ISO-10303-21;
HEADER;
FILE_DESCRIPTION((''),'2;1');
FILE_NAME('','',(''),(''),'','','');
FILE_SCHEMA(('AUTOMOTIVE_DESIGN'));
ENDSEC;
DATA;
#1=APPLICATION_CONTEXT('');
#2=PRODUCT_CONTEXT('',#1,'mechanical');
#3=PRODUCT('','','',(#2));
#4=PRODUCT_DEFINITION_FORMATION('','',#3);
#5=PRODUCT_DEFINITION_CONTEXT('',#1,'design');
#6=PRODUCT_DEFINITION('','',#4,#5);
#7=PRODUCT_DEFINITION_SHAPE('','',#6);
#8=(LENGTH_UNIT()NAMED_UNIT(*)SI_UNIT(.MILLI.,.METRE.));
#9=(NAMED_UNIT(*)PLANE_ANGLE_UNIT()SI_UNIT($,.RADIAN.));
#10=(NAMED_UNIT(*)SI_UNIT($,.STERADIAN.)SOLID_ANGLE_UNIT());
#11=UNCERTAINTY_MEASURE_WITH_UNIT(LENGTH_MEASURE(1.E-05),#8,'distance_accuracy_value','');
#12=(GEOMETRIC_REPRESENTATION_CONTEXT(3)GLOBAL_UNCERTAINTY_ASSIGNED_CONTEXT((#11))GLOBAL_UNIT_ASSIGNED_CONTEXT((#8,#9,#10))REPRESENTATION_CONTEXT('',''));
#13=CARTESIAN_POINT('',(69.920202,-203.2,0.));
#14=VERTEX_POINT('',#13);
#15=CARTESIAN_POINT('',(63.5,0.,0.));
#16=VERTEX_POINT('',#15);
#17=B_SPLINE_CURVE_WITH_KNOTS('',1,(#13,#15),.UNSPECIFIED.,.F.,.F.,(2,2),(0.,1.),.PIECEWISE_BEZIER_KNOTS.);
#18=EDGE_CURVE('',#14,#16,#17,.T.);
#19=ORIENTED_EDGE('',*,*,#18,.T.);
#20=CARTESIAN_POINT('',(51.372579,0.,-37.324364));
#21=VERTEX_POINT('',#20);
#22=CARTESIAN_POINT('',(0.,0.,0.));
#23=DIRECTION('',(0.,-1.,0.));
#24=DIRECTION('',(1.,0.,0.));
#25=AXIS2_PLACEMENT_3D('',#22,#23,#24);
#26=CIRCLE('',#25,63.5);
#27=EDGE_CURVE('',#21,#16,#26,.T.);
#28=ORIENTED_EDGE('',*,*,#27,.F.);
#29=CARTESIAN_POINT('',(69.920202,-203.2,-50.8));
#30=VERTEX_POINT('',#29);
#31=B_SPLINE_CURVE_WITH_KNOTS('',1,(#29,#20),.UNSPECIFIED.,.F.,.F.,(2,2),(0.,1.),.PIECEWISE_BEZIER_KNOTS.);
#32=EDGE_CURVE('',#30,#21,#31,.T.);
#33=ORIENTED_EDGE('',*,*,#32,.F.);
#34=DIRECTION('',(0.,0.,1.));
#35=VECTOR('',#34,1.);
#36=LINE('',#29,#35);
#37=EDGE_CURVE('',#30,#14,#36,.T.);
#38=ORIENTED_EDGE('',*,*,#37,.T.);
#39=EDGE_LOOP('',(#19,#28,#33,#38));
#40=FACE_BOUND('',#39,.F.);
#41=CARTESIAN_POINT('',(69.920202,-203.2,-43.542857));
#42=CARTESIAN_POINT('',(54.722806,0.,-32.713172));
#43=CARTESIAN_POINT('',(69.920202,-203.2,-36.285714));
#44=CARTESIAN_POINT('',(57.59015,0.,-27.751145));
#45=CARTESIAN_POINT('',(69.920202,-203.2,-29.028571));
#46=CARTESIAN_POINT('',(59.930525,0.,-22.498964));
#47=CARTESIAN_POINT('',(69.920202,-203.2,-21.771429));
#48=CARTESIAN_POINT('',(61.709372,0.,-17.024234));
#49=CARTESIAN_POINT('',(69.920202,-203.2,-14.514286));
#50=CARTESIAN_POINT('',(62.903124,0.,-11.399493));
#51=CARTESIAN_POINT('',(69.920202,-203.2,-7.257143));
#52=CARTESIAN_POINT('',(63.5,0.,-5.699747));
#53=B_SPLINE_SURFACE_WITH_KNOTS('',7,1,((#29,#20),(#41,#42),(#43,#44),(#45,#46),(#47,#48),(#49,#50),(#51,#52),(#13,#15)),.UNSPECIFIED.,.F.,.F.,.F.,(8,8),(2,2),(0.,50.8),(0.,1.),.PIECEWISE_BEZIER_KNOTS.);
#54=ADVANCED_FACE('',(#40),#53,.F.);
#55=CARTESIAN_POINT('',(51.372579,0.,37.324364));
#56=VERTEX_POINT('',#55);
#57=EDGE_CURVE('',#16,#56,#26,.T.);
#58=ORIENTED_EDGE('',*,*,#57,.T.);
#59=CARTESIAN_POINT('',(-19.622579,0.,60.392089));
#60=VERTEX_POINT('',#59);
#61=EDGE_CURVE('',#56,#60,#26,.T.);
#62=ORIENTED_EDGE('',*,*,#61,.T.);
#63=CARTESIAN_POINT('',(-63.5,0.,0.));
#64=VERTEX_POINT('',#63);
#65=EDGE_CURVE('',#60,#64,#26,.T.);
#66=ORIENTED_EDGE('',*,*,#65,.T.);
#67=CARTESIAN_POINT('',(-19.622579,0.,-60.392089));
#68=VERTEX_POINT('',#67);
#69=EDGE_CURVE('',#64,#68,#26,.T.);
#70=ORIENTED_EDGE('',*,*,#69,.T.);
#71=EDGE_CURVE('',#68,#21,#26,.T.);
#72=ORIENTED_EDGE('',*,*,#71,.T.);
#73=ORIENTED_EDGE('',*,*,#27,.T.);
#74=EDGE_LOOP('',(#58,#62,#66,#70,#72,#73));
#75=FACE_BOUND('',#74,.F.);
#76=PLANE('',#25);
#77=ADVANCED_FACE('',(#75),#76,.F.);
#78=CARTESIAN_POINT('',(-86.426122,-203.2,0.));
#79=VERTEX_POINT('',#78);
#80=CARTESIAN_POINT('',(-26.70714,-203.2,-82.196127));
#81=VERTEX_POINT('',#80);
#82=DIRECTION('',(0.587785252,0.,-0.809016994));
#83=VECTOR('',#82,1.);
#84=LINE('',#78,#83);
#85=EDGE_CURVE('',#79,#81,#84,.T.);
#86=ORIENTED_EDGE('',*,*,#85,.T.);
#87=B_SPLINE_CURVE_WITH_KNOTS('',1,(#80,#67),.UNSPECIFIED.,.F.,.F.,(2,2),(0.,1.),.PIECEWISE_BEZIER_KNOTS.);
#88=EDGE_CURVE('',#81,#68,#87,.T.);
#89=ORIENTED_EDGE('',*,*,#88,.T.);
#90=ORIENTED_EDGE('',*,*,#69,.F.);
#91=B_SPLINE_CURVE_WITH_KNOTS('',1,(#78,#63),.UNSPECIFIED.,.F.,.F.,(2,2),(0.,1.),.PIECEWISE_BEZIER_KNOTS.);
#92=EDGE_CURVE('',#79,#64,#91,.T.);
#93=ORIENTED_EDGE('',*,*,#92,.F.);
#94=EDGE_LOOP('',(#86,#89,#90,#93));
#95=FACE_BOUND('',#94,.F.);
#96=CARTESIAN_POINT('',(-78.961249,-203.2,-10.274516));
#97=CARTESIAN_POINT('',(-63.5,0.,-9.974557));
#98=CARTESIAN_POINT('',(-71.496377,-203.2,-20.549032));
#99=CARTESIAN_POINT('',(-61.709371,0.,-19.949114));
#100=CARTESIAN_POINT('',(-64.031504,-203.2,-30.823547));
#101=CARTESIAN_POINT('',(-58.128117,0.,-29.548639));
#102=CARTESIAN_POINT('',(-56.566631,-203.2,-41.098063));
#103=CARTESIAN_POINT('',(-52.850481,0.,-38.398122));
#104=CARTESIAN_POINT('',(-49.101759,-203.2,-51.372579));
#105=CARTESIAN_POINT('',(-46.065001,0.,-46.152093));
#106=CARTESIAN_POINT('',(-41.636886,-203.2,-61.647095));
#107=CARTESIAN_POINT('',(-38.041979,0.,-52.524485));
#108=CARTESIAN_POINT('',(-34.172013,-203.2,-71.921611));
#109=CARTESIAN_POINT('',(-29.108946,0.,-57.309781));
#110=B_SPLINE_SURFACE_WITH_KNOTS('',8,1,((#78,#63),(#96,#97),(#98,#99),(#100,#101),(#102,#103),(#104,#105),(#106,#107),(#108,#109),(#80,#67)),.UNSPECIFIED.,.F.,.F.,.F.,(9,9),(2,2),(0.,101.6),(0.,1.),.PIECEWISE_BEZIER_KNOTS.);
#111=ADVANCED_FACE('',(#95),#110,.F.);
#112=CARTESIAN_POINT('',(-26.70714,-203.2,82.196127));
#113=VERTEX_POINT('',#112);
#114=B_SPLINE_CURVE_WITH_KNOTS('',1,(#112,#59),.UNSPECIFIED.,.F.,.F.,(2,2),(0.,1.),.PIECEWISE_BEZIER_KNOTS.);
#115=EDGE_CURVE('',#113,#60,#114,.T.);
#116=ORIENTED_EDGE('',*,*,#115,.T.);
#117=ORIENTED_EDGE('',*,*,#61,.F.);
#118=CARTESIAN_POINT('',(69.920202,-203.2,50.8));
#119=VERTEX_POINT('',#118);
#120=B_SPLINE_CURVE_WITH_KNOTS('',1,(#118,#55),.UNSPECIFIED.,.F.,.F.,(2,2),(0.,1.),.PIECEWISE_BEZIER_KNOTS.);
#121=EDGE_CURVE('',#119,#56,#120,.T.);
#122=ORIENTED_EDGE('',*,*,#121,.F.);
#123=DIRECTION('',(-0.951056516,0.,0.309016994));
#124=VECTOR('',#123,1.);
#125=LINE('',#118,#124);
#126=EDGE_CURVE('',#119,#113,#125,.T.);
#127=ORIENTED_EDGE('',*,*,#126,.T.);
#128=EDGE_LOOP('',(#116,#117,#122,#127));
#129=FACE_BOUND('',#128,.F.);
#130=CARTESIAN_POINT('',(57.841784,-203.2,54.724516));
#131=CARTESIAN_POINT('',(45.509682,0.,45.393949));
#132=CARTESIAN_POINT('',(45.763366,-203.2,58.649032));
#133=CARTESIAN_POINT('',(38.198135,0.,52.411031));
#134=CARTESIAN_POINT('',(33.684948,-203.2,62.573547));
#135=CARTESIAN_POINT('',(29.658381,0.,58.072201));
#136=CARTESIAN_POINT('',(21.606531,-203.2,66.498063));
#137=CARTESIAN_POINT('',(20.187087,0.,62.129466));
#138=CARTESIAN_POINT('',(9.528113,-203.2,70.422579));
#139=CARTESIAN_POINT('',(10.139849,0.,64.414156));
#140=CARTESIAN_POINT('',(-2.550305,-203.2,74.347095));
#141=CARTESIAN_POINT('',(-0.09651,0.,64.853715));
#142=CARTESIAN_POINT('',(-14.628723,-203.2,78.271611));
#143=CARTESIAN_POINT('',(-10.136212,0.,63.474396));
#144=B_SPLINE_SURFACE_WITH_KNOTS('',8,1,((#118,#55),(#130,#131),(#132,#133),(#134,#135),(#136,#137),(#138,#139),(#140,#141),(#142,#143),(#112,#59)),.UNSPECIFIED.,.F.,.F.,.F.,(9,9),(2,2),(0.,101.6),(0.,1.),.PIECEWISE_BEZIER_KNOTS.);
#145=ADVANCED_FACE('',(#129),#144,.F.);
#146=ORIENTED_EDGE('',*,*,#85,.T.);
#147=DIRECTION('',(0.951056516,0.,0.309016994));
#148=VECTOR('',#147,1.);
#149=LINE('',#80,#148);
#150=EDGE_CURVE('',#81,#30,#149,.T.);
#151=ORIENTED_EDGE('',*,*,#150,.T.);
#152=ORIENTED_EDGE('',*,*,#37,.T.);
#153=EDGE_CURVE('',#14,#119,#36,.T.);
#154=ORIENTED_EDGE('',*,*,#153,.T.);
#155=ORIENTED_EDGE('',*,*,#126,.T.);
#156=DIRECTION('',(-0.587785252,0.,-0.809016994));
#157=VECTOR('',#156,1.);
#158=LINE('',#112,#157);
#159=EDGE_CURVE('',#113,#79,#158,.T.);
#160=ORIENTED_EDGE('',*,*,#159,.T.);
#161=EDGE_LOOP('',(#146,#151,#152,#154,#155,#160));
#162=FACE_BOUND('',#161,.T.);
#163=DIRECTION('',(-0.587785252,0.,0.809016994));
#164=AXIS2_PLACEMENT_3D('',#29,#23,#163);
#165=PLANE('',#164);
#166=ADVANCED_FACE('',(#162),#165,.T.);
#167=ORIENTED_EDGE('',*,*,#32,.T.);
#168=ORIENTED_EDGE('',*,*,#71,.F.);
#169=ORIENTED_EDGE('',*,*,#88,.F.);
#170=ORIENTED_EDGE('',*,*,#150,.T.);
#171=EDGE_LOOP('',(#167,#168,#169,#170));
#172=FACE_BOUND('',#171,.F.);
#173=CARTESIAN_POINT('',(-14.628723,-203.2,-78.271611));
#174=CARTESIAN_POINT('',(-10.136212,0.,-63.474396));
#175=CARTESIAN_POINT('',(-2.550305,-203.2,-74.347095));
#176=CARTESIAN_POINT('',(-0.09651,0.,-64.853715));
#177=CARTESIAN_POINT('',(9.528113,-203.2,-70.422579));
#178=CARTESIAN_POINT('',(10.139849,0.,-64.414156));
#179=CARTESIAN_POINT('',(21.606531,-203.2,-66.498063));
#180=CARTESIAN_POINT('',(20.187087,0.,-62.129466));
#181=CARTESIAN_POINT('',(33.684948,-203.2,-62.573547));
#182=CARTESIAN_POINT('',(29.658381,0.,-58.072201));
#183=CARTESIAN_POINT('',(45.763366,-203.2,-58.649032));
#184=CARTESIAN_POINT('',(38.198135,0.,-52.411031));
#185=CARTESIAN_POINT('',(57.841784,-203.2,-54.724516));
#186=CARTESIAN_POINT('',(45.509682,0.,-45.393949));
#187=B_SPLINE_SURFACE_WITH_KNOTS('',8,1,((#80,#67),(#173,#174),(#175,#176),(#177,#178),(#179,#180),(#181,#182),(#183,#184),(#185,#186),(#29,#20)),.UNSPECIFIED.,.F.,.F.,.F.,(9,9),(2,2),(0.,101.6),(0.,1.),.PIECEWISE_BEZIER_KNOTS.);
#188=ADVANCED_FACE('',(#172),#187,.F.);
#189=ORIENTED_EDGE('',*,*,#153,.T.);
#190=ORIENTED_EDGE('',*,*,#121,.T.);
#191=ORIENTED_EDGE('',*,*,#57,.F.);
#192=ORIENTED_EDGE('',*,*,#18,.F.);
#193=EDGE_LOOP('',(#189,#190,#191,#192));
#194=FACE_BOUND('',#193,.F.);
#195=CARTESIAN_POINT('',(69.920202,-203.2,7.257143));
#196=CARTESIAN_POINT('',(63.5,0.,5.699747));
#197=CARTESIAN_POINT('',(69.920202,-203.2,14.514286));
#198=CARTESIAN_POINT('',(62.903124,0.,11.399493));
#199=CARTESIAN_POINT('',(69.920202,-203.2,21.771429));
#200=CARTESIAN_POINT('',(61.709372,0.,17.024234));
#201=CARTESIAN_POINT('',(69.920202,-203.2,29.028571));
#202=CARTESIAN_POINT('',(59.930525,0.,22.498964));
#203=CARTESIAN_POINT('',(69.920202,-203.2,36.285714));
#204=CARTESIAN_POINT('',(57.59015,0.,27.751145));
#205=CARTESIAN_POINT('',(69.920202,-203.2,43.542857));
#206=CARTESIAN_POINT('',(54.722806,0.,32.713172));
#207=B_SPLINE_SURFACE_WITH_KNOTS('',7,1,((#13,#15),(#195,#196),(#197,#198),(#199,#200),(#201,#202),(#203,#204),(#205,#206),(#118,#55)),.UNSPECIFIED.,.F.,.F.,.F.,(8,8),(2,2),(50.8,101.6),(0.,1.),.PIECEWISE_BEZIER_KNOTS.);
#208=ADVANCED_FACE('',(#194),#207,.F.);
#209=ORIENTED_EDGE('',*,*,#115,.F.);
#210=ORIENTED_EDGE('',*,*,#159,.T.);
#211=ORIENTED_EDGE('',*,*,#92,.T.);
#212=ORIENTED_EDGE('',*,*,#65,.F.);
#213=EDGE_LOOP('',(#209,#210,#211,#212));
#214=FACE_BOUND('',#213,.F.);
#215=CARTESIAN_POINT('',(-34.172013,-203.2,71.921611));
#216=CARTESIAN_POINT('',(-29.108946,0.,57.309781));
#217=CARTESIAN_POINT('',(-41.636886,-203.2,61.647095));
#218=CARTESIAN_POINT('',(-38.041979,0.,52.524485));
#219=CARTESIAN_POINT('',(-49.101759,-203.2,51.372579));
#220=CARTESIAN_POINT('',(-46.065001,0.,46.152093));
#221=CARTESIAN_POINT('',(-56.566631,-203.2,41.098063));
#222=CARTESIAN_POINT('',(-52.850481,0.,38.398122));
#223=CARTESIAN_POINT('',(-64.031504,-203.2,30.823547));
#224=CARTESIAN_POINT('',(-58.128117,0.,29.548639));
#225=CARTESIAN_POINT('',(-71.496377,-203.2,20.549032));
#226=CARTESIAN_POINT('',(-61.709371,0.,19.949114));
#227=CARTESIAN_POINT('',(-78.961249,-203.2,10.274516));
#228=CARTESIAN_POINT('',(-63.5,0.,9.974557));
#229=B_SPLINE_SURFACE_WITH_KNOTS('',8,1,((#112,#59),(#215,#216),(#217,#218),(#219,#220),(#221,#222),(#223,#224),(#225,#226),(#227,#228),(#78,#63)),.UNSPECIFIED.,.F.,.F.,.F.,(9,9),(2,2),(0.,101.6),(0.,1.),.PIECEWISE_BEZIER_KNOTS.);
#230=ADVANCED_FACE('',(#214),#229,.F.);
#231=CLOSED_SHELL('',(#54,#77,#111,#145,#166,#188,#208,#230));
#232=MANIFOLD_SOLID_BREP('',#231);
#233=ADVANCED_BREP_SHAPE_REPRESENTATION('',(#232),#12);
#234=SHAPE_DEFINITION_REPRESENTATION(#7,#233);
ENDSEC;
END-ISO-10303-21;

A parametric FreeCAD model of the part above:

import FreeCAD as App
import Part
import Sketcher
Q = App.Units.Quantity


def add_polygon(sketch, points):
    """Adds a closed chain of lines whose ends are joined by coincident constraints."""
    first, n = sketch.GeometryCount, len(points)
    for a, b in zip(points, points[1:] + points[:1]):
        sketch.addGeometry(Part.LineSegment(App.Vector(*a, 0), App.Vector(*b, 0)), False)
    for i in range(n):
        sketch.addConstraint(Sketcher.Constraint("Coincident", first + i, 2, first + (i + 1) % n, 1))

doc = App.newDocument("Part")
body = doc.addObject("PartDesign::Body", "Body")

# Sketch on XZ plane
sketch1 = doc.addObject("Sketcher::SketchObject", "Sketch")
body.addObject(sketch1)
sketch1.AttachmentSupport = (doc.XZ_Plane, [""])
sketch1.MapMode = "FlatFace"
sketch1.AttachmentOffset = App.Placement(App.Vector(0, 0, 8 * 25.4), App.Rotation())
add_polygon(sketch1, [(70, -51), (70, 51), (-27, 82), (-86, 0), (-27, -82)])  # lines 0-4
sketch1.addConstraint(Sketcher.Constraint("Vertical", 0))
sketch1.addConstraint(Sketcher.Constraint("Symmetric", 1, 2, 3, 2, -1))
sketch1.addConstraint(Sketcher.Constraint("PointOnObject", 2, 2, -1))
sketch1.addConstraint(Sketcher.Constraint("Equal", 1, 2))
sketch1.addConstraint(Sketcher.Constraint("Equal", 3, 4))
sketch1.addConstraint(Sketcher.Constraint("DistanceY", 0, 1, 0, 2, Q("4 in")))
sketch1.addConstraint(Sketcher.Constraint("Distance", 1, Q("4 in")))
sketch1.addConstraint(Sketcher.Constraint("Angle", 1, Q("162 deg")))
sketch1.addConstraint(Sketcher.Constraint("DistanceX", -1, 1, 0, 2, Q("69.920202 mm")))

# Sketch on XZ plane
sketch2 = doc.addObject("Sketcher::SketchObject", "Sketch001")
body.addObject(sketch2)
sketch2.AttachmentSupport = (doc.XZ_Plane, [""])
sketch2.MapMode = "FlatFace"
sketch2.addGeometry(Part.Circle(App.Vector(0, 0, 0), App.Vector(0, 0, 1), 64), False)
sketch2.addConstraint(Sketcher.Constraint("Coincident", 0, 3, -1, 1))
sketch2.addConstraint(Sketcher.Constraint("Diameter", 0, Q("5 in")))

additiveloft = doc.addObject("PartDesign::AdditiveLoft", "AdditiveLoft")
body.addObject(additiveloft)
additiveloft.Profile = sketch1
additiveloft.Sections = [sketch2]

doc.recompute()
